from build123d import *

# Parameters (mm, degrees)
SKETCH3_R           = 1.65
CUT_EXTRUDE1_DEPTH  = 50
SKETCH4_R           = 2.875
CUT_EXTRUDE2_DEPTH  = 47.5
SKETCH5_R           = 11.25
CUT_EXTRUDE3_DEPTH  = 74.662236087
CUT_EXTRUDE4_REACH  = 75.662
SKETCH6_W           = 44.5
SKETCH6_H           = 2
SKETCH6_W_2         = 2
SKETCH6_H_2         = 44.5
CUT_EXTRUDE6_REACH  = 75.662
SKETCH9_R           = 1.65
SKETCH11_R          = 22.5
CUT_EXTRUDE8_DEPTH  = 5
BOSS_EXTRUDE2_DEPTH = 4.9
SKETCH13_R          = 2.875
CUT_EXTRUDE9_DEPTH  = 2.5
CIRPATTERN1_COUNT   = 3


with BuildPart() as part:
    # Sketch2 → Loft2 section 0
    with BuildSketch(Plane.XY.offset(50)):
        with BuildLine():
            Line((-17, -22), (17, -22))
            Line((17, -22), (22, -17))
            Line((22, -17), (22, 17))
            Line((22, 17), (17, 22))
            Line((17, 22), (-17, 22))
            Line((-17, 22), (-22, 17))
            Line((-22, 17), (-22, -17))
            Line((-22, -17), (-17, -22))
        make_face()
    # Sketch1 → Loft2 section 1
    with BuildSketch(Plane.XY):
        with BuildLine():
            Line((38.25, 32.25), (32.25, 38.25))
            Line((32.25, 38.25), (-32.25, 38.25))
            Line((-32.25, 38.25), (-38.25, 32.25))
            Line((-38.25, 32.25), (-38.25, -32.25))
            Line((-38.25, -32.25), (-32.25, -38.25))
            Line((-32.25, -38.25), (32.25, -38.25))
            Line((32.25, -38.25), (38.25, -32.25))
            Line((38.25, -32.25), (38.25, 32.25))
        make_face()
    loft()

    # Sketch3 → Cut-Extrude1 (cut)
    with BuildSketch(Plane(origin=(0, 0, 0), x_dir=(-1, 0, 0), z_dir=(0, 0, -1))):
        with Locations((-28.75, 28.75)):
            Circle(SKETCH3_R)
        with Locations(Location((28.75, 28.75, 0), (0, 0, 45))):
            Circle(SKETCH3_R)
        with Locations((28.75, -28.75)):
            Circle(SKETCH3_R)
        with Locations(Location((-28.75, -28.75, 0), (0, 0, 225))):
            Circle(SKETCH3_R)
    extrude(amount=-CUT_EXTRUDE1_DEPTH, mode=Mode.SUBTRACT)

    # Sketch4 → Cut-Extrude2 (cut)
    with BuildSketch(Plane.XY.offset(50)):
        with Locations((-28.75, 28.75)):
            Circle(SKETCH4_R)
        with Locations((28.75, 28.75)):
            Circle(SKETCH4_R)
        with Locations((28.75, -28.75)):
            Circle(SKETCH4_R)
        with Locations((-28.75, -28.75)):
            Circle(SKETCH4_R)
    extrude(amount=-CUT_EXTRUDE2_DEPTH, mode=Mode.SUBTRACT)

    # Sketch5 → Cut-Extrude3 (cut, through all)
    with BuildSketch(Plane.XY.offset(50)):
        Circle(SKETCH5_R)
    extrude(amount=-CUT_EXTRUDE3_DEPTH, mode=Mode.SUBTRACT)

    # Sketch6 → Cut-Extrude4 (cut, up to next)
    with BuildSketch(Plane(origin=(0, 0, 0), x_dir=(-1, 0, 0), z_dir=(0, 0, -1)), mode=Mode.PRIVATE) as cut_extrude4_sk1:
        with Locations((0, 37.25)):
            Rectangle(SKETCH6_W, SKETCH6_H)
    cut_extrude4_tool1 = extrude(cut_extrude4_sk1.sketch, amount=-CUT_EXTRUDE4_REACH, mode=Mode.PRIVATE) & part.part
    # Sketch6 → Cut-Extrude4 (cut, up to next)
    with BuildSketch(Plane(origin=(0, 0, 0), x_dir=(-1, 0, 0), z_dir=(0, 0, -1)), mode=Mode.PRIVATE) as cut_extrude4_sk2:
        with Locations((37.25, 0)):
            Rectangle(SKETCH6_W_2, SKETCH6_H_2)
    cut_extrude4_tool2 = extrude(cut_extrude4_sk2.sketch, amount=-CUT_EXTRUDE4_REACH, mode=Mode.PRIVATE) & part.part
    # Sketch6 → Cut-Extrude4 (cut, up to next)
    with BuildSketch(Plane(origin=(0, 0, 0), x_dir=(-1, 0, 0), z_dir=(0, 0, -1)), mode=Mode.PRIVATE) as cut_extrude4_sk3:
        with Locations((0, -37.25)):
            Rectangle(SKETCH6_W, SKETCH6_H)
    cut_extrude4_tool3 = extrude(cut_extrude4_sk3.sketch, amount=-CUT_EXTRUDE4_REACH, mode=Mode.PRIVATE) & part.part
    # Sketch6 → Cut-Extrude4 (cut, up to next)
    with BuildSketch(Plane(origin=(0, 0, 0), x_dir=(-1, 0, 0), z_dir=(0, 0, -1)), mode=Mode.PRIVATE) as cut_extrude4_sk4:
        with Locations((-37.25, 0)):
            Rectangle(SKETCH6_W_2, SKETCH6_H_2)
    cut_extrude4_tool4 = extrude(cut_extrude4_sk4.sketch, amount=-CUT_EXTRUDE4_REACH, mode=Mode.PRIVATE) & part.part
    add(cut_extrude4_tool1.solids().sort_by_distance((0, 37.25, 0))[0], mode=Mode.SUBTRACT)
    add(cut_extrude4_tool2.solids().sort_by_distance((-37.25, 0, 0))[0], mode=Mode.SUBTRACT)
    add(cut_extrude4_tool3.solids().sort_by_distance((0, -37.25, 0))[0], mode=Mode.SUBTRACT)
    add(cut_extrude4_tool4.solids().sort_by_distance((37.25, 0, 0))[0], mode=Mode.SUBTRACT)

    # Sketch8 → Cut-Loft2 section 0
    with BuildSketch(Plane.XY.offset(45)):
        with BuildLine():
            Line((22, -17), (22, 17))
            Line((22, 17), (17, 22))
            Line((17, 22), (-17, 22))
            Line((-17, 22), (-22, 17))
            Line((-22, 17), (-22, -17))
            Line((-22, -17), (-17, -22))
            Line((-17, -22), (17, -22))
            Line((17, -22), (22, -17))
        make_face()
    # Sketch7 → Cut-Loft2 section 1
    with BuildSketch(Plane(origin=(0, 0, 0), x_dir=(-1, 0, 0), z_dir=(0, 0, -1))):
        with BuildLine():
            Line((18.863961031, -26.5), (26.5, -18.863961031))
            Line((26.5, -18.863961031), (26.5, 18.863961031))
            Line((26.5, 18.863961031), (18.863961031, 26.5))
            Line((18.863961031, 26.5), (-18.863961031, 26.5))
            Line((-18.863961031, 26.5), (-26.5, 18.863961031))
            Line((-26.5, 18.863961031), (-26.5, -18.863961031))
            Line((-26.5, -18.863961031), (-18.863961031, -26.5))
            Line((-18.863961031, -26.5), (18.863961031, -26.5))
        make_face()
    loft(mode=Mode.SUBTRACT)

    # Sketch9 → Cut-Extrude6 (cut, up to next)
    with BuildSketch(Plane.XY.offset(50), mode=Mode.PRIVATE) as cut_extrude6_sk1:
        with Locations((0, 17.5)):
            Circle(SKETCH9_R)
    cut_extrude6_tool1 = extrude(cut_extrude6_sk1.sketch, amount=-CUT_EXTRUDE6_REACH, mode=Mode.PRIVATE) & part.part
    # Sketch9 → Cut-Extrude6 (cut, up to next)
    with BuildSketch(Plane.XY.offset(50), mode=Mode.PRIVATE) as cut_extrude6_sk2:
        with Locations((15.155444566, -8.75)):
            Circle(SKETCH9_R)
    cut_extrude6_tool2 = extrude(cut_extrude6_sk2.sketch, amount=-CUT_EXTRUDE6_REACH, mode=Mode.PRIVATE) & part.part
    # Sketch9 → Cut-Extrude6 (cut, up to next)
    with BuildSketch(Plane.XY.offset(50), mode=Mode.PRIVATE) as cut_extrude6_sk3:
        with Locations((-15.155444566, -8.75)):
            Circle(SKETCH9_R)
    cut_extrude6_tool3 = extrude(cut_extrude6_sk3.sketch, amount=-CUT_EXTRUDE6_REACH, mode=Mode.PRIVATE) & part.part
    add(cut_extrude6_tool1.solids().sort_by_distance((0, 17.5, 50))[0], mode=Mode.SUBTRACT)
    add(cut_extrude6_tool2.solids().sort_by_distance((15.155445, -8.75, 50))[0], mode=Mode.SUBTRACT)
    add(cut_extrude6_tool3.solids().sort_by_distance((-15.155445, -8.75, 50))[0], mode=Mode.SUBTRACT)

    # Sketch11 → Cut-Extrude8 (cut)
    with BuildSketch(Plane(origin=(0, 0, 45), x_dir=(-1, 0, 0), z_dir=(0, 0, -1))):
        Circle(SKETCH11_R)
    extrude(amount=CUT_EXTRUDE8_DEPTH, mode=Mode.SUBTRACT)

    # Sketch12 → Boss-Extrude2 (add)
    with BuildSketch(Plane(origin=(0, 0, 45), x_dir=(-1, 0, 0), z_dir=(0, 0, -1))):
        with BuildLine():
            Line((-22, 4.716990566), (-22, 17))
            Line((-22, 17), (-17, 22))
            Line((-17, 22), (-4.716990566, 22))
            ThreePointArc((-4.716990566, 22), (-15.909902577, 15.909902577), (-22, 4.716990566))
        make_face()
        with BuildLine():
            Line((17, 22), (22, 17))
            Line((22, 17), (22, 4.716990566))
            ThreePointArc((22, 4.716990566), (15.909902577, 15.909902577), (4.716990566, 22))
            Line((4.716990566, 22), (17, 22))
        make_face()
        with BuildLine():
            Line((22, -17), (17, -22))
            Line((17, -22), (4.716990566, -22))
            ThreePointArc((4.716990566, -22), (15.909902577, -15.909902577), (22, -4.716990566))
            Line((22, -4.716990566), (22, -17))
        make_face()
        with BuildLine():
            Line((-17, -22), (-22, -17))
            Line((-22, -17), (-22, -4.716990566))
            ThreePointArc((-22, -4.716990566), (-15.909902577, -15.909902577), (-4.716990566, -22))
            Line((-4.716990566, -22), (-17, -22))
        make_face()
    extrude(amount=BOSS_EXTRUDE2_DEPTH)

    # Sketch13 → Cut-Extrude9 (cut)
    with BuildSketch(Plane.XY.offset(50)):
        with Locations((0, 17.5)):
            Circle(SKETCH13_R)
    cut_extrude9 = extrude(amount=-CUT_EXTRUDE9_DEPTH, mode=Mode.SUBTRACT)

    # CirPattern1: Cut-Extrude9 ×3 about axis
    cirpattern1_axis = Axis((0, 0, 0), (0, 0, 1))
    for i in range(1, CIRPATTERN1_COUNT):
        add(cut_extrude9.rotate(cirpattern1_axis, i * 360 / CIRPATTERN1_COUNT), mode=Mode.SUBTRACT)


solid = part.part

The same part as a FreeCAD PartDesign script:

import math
import FreeCAD as App
import Part
import Sketcher
Q = App.Units.Quantity


def add_polygon(sketch, points):
    """Adds a closed chain of lines whose ends are joined by coincident constraints."""
    first, n = sketch.GeometryCount, len(points)
    for a, b in zip(points, points[1:] + points[:1]):
        sketch.addGeometry(Part.LineSegment(App.Vector(*a, 0), App.Vector(*b, 0)), False)
    for i in range(n):
        sketch.addConstraint(Sketcher.Constraint("Coincident", first + i, 2, first + (i + 1) % n, 1))

doc = App.newDocument("Part")
params = doc.addObject("Spreadsheet::Sheet", "Params")
for row, (alias, value) in enumerate([
    ("sketch1_width", "34 mm"),
    ("sketch2_width", "64.5 mm"),
    ("sketch3_diameter", "3.3 mm"),
    ("pocket1_length", "50 mm"),
    ("sketch4_diameter", "5.75 mm"),
    ("pocket2_length", "47.5 mm"),
    ("sketch5_diameter", "22.5 mm"),
    ("sketch6_height", "2 mm"),
    ("sketch6_width", "44.5 mm"),
    ("pocket4_length", "6.153846 mm"),
    ("sketch7_width", "2 mm"),
    ("sketch7_height", "44.5 mm"),
    ("pocket5_length", "6.153846 mm"),
    ("sketch8_height", "2 mm"),
    ("sketch8_width", "44.5 mm"),
    ("pocket6_length", "6.153846 mm"),
    ("sketch9_width", "2 mm"),
    ("sketch9_height", "44.5 mm"),
    ("pocket7_length", "6.153846 mm"),
    ("sketch10_width", "34 mm"),
    ("sketch12_diameter", "3.3 mm"),
    ("sketch13_diameter", "3.3 mm"),
    ("sketch14_diameter", "3.3 mm"),
    ("sketch15_diameter", "45 mm"),
    ("pocket11_length", "5 mm"),
    ("sketch16_radius", "22.5 mm"),
    ("pad1_length", "4.9 mm"),
    ("sketch17_diameter", "5.75 mm"),
    ("pocket12_length", "2.5 mm"),
], start=1):
    params.set(f"A{row}", alias)
    params.set(f"B{row}", "=" + value)
    params.setAlias(f"B{row}", alias)

body = doc.addObject("PartDesign::Body", "Body")

# Sketch on XY plane
sketch1 = body.newObject("Sketcher::SketchObject", "Sketch")
sketch1.AttachmentSupport = (doc.getObject("XY_Plane"), [""])
sketch1.MapMode = "FlatFace"
sketch1.AttachmentOffset = App.Placement(App.Vector(0, 0, 50), App.Rotation())
add_polygon(sketch1, [(-17, -22), (17, -22), (22, -17), (22, 17), (17, 22), (-17, 22), (-22, 17), (-22, -17)])  # lines 0-7
sketch1.addConstraint([
    Sketcher.Constraint("Horizontal", 0),
    Sketcher.Constraint("Vertical", 2),
    Sketcher.Constraint("Horizontal", 4),
    Sketcher.Constraint("Vertical", 6),
    Sketcher.Constraint("Symmetric", 0, 2, 4, 2, -1, 1),
    Sketcher.Constraint("Symmetric", 1, 2, 5, 2, -1, 1),
    Sketcher.Constraint("Perpendicular", 1, 3),
    Sketcher.Constraint("Perpendicular", 5, 7),
    Sketcher.Constraint("Horizontal", 2, 2, 5, 2),
    Sketcher.Constraint("Horizontal", 1, 2, 6, 2),
    Sketcher.Constraint("Vertical", 0, 2, 3, 2),
    Sketcher.Constraint("Equal", 4, 2),
    Sketcher.Constraint("DistanceX", 0, 1, 0, 2, Q("34 mm")),
    Sketcher.Constraint("DistanceY", 0, 2, -1, 1, Q("22 mm")),
])
sketch1.setExpression("Constraints[20]", "Params.sketch1_width")

# Sketch on XY plane
sketch2 = body.newObject("Sketcher::SketchObject", "Sketch001")
sketch2.AttachmentSupport = (doc.getObject("XY_Plane"), [""])
sketch2.MapMode = "FlatFace"
add_polygon(sketch2, [(38, 32), (32, 38), (-32, 38), (-38, 32), (-38, -32), (-32, -38), (32, -38), (38, -32)])  # lines 0-7
sketch2.addConstraint([
    Sketcher.Constraint("Horizontal", 1),
    Sketcher.Constraint("Vertical", 3),
    Sketcher.Constraint("Horizontal", 5),
    Sketcher.Constraint("Vertical", 7),
    Sketcher.Constraint("Symmetric", 0, 2, 4, 2, -1, 1),
    Sketcher.Constraint("Symmetric", 2, 2, 6, 2, -1, 1),
    Sketcher.Constraint("Perpendicular", 0, 2),
    Sketcher.Constraint("Perpendicular", 2, 4),
    Sketcher.Constraint("Perpendicular", 4, 6),
    Sketcher.Constraint("Horizontal", 3, 2, 6, 2),
    Sketcher.Constraint("Vertical", 1, 2, 4, 2),
    Sketcher.Constraint("Equal", 5, 3),
    Sketcher.Constraint("DistanceX", 1, 2, 1, 1, Q("64.5 mm")),
    Sketcher.Constraint("DistanceX", 2, 2, 1, 2, Q("6 mm")),
])
sketch2.setExpression("Constraints[20]", "Params.sketch2_width")

additiveloft = body.newObject("PartDesign::AdditiveLoft", "AdditiveLoft")
additiveloft.Profile = sketch1
additiveloft.Sections = [sketch2]

# Sketch on XY plane
sketch3 = body.newObject("Sketcher::SketchObject", "Sketch002")
sketch3.AttachmentSupport = (doc.getObject("XY_Plane"), [""])
sketch3.MapMode = "FlatFace"
sketch3.addGeometry([
    Part.Circle(App.Vector(28.8, 28.8, 0), App.Vector(0, 0, 1), 1.6),
    Part.Circle(App.Vector(-28.8, 28.8, 0), App.Vector(0, 0, 1), 1.6),
    Part.Circle(App.Vector(-28.8, -28.8, 0), App.Vector(0, 0, 1), 1.6),
    Part.Circle(App.Vector(28.8, -28.8, 0), App.Vector(0, 0, 1), 1.6),
], False)
sketch3.addConstraint([
    Sketcher.Constraint("Equal", 0, 1),
    Sketcher.Constraint("Equal", 1, 2),
    Sketcher.Constraint("Equal", 2, 3),
    Sketcher.Constraint("Symmetric", 0, 3, 2, 3, -1, 1),
    Sketcher.Constraint("Symmetric", 1, 3, 3, 3, -1, 1),
    Sketcher.Constraint("Symmetric", 0, 3, 1, 3, -2),
    Sketcher.Constraint("Diameter", 0, Q("3.3 mm")),
    Sketcher.Constraint("DistanceX", 1, 3, 0, 3, Q("57.5 mm")),
    Sketcher.Constraint("DistanceY", 2, 3, 1, 3, Q("57.5 mm")),
])
sketch3.setExpression("Constraints[6]", "Params.sketch3_diameter")
pocket1 = body.newObject("PartDesign::Pocket", "Pocket")
pocket1.Profile = sketch3
pocket1.setExpression("Length", "Params.pocket1_length")
pocket1.Reversed = True

# Sketch on XY plane
sketch4 = body.newObject("Sketcher::SketchObject", "Sketch003")
sketch4.AttachmentSupport = (doc.getObject("XY_Plane"), [""])
sketch4.MapMode = "FlatFace"
sketch4.AttachmentOffset = App.Placement(App.Vector(0, 0, 50), App.Rotation())
sketch4.addGeometry([
    Part.Circle(App.Vector(-28.8, 28.8, 0), App.Vector(0, 0, 1), 2.9),
    Part.Circle(App.Vector(28.8, 28.8, 0), App.Vector(0, 0, 1), 2.9),
    Part.Circle(App.Vector(28.8, -28.8, 0), App.Vector(0, 0, 1), 2.9),
    Part.Circle(App.Vector(-28.8, -28.8, 0), App.Vector(0, 0, 1), 2.9),
], False)
sketch4.addConstraint([
    Sketcher.Constraint("Equal", 0, 1),
    Sketcher.Constraint("Equal", 1, 2),
    Sketcher.Constraint("Equal", 2, 3),
    Sketcher.Constraint("Symmetric", 0, 3, 2, 3, -1, 1),
    Sketcher.Constraint("Symmetric", 1, 3, 3, 3, -1, 1),
    Sketcher.Constraint("Symmetric", 0, 3, 1, 3, -2),
    Sketcher.Constraint("Diameter", 0, Q("5.75 mm")),
    Sketcher.Constraint("DistanceX", 0, 3, 1, 3, Q("57.5 mm")),
    Sketcher.Constraint("DistanceY", 2, 3, 1, 3, Q("57.5 mm")),
])
sketch4.setExpression("Constraints[6]", "Params.sketch4_diameter")
pocket2 = body.newObject("PartDesign::Pocket", "Pocket001")
pocket2.Profile = sketch4
pocket2.setExpression("Length", "Params.pocket2_length")

# Sketch on XY plane
sketch5 = body.newObject("Sketcher::SketchObject", "Sketch004")
sketch5.AttachmentSupport = (doc.getObject("XY_Plane"), [""])
sketch5.MapMode = "FlatFace"
sketch5.AttachmentOffset = App.Placement(App.Vector(0, 0, 50), App.Rotation())
sketch5.addGeometry(Part.Circle(App.Vector(0, 0, 0), App.Vector(0, 0, 1), 11), False)
sketch5.addConstraint([
    Sketcher.Constraint("Coincident", 0, 3, -1, 1),
    Sketcher.Constraint("Diameter", 0, Q("22.5 mm")),
])
sketch5.setExpression("Constraints[1]", "Params.sketch5_diameter")
pocket3 = body.newObject("PartDesign::Pocket", "Pocket002")
pocket3.Profile = sketch5
pocket3.Type = "ThroughAll"

# Sketch on XY plane
sketch6 = body.newObject("Sketcher::SketchObject", "Sketch005")
sketch6.AttachmentSupport = (doc.getObject("XY_Plane"), [""])
sketch6.MapMode = "FlatFace"
add_polygon(sketch6, [(22.2, 38.2), (22.2, 36.2), (-22.2, 36.2), (-22.2, 38.2)])  # lines 0-3
sketch6.addConstraint([
    Sketcher.Constraint("Vertical", 0),
    Sketcher.Constraint("Horizontal", 1),
    Sketcher.Constraint("Vertical", 2),
    Sketcher.Constraint("Horizontal", 3),
    Sketcher.Constraint("DistanceY", 0, 2, 0, 1, Q("2 mm")),
    Sketcher.Constraint("DistanceX", 1, 2, 1, 1, Q("44.5 mm")),
    Sketcher.Constraint("DistanceX", -1, 1, 0, 2, Q("22.25 mm")),
    Sketcher.Constraint("DistanceY", -1, 1, 0, 2, Q("36.25 mm")),
])
sketch6.setExpression("Constraints[8]", "Params.sketch6_height")
sketch6.setExpression("Constraints[9]", "Params.sketch6_width")
pocket4 = body.newObject("PartDesign::Pocket", "Pocket003")
pocket4.Profile = sketch6
pocket4.setExpression("Length", "Params.pocket4_length")
pocket4.Reversed = True

# Sketch on XY plane
sketch7 = body.newObject("Sketcher::SketchObject", "Sketch006")
sketch7.AttachmentSupport = (doc.getObject("XY_Plane"), [""])
sketch7.MapMode = "FlatFace"
add_polygon(sketch7, [(-36.2, 22.2), (-36.2, -22.2), (-38.2, -22.2), (-38.2, 22.2)])  # lines 0-3
sketch7.addConstraint([
    Sketcher.Constraint("Vertical", 0),
    Sketcher.Constraint("Horizontal", 1),
    Sketcher.Constraint("Vertical", 2),
    Sketcher.Constraint("Horizontal", 3),
    Sketcher.Constraint("DistanceX", 1, 2, 1, 1, Q("2 mm")),
    Sketcher.Constraint("DistanceY", 0, 2, 0, 1, Q("44.5 mm")),
    Sketcher.Constraint("DistanceX", 0, 2, -1, 1, Q("36.25 mm")),
    Sketcher.Constraint("DistanceY", 0, 2, -1, 1, Q("22.25 mm")),
])
sketch7.setExpression("Constraints[8]", "Params.sketch7_width")
sketch7.setExpression("Constraints[9]", "Params.sketch7_height")
pocket5 = body.newObject("PartDesign::Pocket", "Pocket004")
pocket5.Profile = sketch7
pocket5.setExpression("Length", "Params.pocket5_length")
pocket5.Reversed = True

# Sketch on XY plane
sketch8 = body.newObject("Sketcher::SketchObject", "Sketch007")
sketch8.AttachmentSupport = (doc.getObject("XY_Plane"), [""])
sketch8.MapMode = "FlatFace"
add_polygon(sketch8, [(22.2, -36.2), (22.2, -38.2), (-22.2, -38.2), (-22.2, -36.2)])  # lines 0-3
sketch8.addConstraint([
    Sketcher.Constraint("Vertical", 0),
    Sketcher.Constraint("Horizontal", 1),
    Sketcher.Constraint("Vertical", 2),
    Sketcher.Constraint("Horizontal", 3),
    Sketcher.Constraint("DistanceY", 0, 2, 0, 1, Q("2 mm")),
    Sketcher.Constraint("DistanceX", 1, 2, 1, 1, Q("44.5 mm")),
    Sketcher.Constraint("DistanceX", -1, 1, 0, 2, Q("22.25 mm")),
    Sketcher.Constraint("DistanceY", 0, 2, -1, 1, Q("38.25 mm")),
])
sketch8.setExpression("Constraints[8]", "Params.sketch8_height")
sketch8.setExpression("Constraints[9]", "Params.sketch8_width")
pocket6 = body.newObject("PartDesign::Pocket", "Pocket005")
pocket6.Profile = sketch8
pocket6.setExpression("Length", "Params.pocket6_length")
pocket6.Reversed = True

# Sketch on XY plane
sketch9 = body.newObject("Sketcher::SketchObject", "Sketch008")
sketch9.AttachmentSupport = (doc.getObject("XY_Plane"), [""])
sketch9.MapMode = "FlatFace"
add_polygon(sketch9, [(38.2, 22.2), (38.2, -22.2), (36.2, -22.2), (36.2, 22.2)])  # lines 0-3
sketch9.addConstraint([
    Sketcher.Constraint("Vertical", 0),
    Sketcher.Constraint("Horizontal", 1),
    Sketcher.Constraint("Vertical", 2),
    Sketcher.Constraint("Horizontal", 3),
    Sketcher.Constraint("DistanceX", 1, 2, 1, 1, Q("2 mm")),
    Sketcher.Constraint("DistanceY", 0, 2, 0, 1, Q("44.5 mm")),
    Sketcher.Constraint("DistanceX", -1, 1, 0, 2, Q("38.25 mm")),
    Sketcher.Constraint("DistanceY", 0, 2, -1, 1, Q("22.25 mm")),
])
sketch9.setExpression("Constraints[8]", "Params.sketch9_width")
sketch9.setExpression("Constraints[9]", "Params.sketch9_height")
pocket7 = body.newObject("PartDesign::Pocket", "Pocket006")
pocket7.Profile = sketch9
pocket7.setExpression("Length", "Params.pocket7_length")
pocket7.Reversed = True

# Sketch on XY plane
sketch10 = body.newObject("Sketcher::SketchObject", "Sketch009")
sketch10.AttachmentSupport = (doc.getObject("XY_Plane"), [""])
sketch10.MapMode = "FlatFace"
sketch10.AttachmentOffset = App.Placement(App.Vector(0, 0, 45), App.Rotation())
add_polygon(sketch10, [(22, -17), (22, 17), (17, 22), (-17, 22), (-22, 17), (-22, -17), (-17, -22), (17, -22)])  # lines 0-7
sketch10.addConstraint([
    Sketcher.Constraint("Vertical", 0),
    Sketcher.Constraint("Horizontal", 2),
    Sketcher.Constraint("Vertical", 4),
    Sketcher.Constraint("Horizontal", 6),
    Sketcher.Constraint("Symmetric", 0, 2, 4, 2, -1, 1),
    Sketcher.Constraint("Symmetric", 1, 2, 5, 2, -1, 1),
    Sketcher.Constraint("Perpendicular", 1, 3),
    Sketcher.Constraint("Perpendicular", 5, 7),
    Sketcher.Constraint("Horizontal", 0, 2, 3, 2),
    Sketcher.Constraint("Horizontal", 4, 2, 7, 2),
    Sketcher.Constraint("Vertical", 2, 2, 5, 2),
    Sketcher.Constraint("Equal", 6, 0),
    Sketcher.Constraint("DistanceX", 2, 2, 2, 1, Q("34 mm")),
    Sketcher.Constraint("DistanceX", -1, 1, 0, 2, Q("22 mm")),
])
sketch10.setExpression("Constraints[20]", "Params.sketch10_width")

# Sketch on XY plane
sketch11 = body.newObject("Sketcher::SketchObject", "Sketch010")
sketch11.AttachmentSupport = (doc.getObject("XY_Plane"), [""])
sketch11.MapMode = "FlatFace"
add_polygon(sketch11, [(-19, -26), (-26, -19), (-26, 19), (-19, 26), (19, 26), (26, 19), (26, -19), (19, -26)])  # lines 0-7
sketch11.addConstraint([
    Sketcher.Constraint("Vertical", 1),
    Sketcher.Constraint("Horizontal", 3),
    Sketcher.Constraint("Vertical", 5),
    Sketcher.Constraint("Horizontal", 7),
    Sketcher.Constraint("Symmetric", 0, 2, 4, 2, -1, 1),
    Sketcher.Constraint("Symmetric", 2, 2, 6, 2, -1, 1),
    Sketcher.Constraint("Perpendicular", 0, 2),
    Sketcher.Constraint("Perpendicular", 2, 4),
    Sketcher.Constraint("Perpendicular", 4, 6),
    Sketcher.Constraint("Horizontal", 1, 2, 4, 2),
    Sketcher.Constraint("Vertical", 3, 2, 6, 2),
    Sketcher.Constraint("Equal", 7, 1),
    Sketcher.Constraint("DistanceX", 1, 2, 4, 2, Q("53 mm")),
    Sketcher.Constraint("Distance", 0, Q("10.79899 mm")),
])

subtractiveloft = body.newObject("PartDesign::SubtractiveLoft", "SubtractiveLoft")
subtractiveloft.Profile = sketch10
subtractiveloft.Sections = [sketch11]

# Sketch on XY plane
sketch12 = body.newObject("Sketcher::SketchObject", "Sketch011")
sketch12.AttachmentSupport = (doc.getObject("XY_Plane"), [""])
sketch12.MapMode = "FlatFace"
sketch12.AttachmentOffset = App.Placement(App.Vector(0, 0, 50), App.Rotation())
sketch12.addGeometry(Part.Circle(App.Vector(0, 17.5, 0), App.Vector(0, 0, 1), 1.6), False)
sketch12.addConstraint([
    Sketcher.Constraint("PointOnObject", 0, 3, -2),
    Sketcher.Constraint("Diameter", 0, Q("3.3 mm")),
    Sketcher.Constraint("DistanceY", -1, 1, 0, 3, Q("17.5 mm")),
])
sketch12.setExpression("Constraints[1]", "Params.sketch12_diameter")
pocket8 = body.newObject("PartDesign::Pocket", "Pocket007")
pocket8.Profile = sketch12
pocket8.Type = "UpToFirst"

# Sketch on XY plane
sketch13 = body.newObject("Sketcher::SketchObject", "Sketch012")
sketch13.AttachmentSupport = (doc.getObject("XY_Plane"), [""])
sketch13.MapMode = "FlatFace"
sketch13.AttachmentOffset = App.Placement(App.Vector(0, 0, 50), App.Rotation())
sketch13.addGeometry(Part.Circle(App.Vector(15.2, -8.8, 0), App.Vector(0, 0, 1), 1.6), False)
sketch13.addConstraint([
    Sketcher.Constraint("Diameter", 0, Q("3.3 mm")),
    Sketcher.Constraint("DistanceY", 0, 3, -1, 1, Q("8.75 mm")),
    Sketcher.Constraint("DistanceX", -1, 1, 0, 3, Q("15.155445 mm")),
])
sketch13.setExpression("Constraints[0]", "Params.sketch13_diameter")
pocket9 = body.newObject("PartDesign::Pocket", "Pocket008")
pocket9.Profile = sketch13
pocket9.Type = "UpToFirst"

# Sketch on XY plane
sketch14 = body.newObject("Sketcher::SketchObject", "Sketch013")
sketch14.AttachmentSupport = (doc.getObject("XY_Plane"), [""])
sketch14.MapMode = "FlatFace"
sketch14.AttachmentOffset = App.Placement(App.Vector(0, 0, 50), App.Rotation())
sketch14.addGeometry(Part.Circle(App.Vector(-15.2, -8.8, 0), App.Vector(0, 0, 1), 1.6), False)
sketch14.addConstraint([
    Sketcher.Constraint("Diameter", 0, Q("3.3 mm")),
    Sketcher.Constraint("DistanceY", 0, 3, -1, 1, Q("8.75 mm")),
    Sketcher.Constraint("DistanceX", 0, 3, -1, 1, Q("15.155445 mm")),
])
sketch14.setExpression("Constraints[0]", "Params.sketch14_diameter")
pocket10 = body.newObject("PartDesign::Pocket", "Pocket009")
pocket10.Profile = sketch14
pocket10.Type = "UpToFirst"

# Sketch on XY plane
sketch15 = body.newObject("Sketcher::SketchObject", "Sketch014")
sketch15.AttachmentSupport = (doc.getObject("XY_Plane"), [""])
sketch15.MapMode = "FlatFace"
sketch15.AttachmentOffset = App.Placement(App.Vector(0, 0, 45), App.Rotation())
sketch15.addGeometry(Part.Circle(App.Vector(0, 0, 0), App.Vector(0, 0, 1), 22), False)
sketch15.addConstraint([
    Sketcher.Constraint("Coincident", 0, 3, -1, 1),
    Sketcher.Constraint("Diameter", 0, Q("45 mm")),
])
sketch15.setExpression("Constraints[1]", "Params.sketch15_diameter")
pocket11 = body.newObject("PartDesign::Pocket", "Pocket010")
pocket11.Profile = sketch15
pocket11.setExpression("Length", "Params.pocket11_length")

# Sketch on XY plane
sketch16 = body.newObject("Sketcher::SketchObject", "Sketch015")
sketch16.AttachmentSupport = (doc.getObject("XY_Plane"), [""])
sketch16.MapMode = "FlatFace"
sketch16.AttachmentOffset = App.Placement(App.Vector(0, 0, 45), App.Rotation())
sketch16.addGeometry([
    Part.LineSegment(App.Vector(22, 17, 0), App.Vector(22, 5, 0)),  # 0
    Part.ArcOfCircle(Part.Circle(App.Vector(0, 0, 0), App.Vector(0, 0, 1), 22), math.radians(12), math.radians(78)),  # 1
    Part.LineSegment(App.Vector(5, 22, 0), App.Vector(17, 22, 0)),  # 2
    Part.LineSegment(App.Vector(17, 22, 0), App.Vector(22, 17, 0)),  # 3
    Part.LineSegment(App.Vector(-22, 17, 0), App.Vector(-17, 22, 0)),  # 4
    Part.LineSegment(App.Vector(-17, 22, 0), App.Vector(-5, 22, 0)),  # 5
    Part.ArcOfCircle(Part.Circle(App.Vector(0, 0, 0), App.Vector(0, 0, 1), 22), math.radians(102), math.radians(168)),  # 6
    Part.LineSegment(App.Vector(-22, 5, 0), App.Vector(-22, 17, 0)),  # 7
    Part.LineSegment(App.Vector(-17, -22, 0), App.Vector(-22, -17, 0)),  # 8
    Part.LineSegment(App.Vector(-22, -17, 0), App.Vector(-22, -5, 0)),  # 9
    Part.ArcOfCircle(Part.Circle(App.Vector(0, 0, 0), App.Vector(0, 0, 1), 22), math.radians(-168), math.radians(-102)),  # 10
    Part.LineSegment(App.Vector(-5, -22, 0), App.Vector(-17, -22, 0)),  # 11
    Part.LineSegment(App.Vector(22, -17, 0), App.Vector(17, -22, 0)),  # 12
    Part.LineSegment(App.Vector(17, -22, 0), App.Vector(5, -22, 0)),  # 13
    Part.ArcOfCircle(Part.Circle(App.Vector(0, 0, 0), App.Vector(0, 0, 1), 22), math.radians(-78), math.radians(-12)),  # 14
    Part.LineSegment(App.Vector(22, -5, 0), App.Vector(22, -17, 0)),  # 15
], False)
sketch16.addConstraint([
    Sketcher.Constraint("Coincident", 0, 2, 1, 1),
    Sketcher.Constraint("Coincident", 1, 2, 2, 1),
    Sketcher.Constraint("Coincident", 2, 2, 3, 1),
    Sketcher.Constraint("Coincident", 3, 2, 0, 1),
    Sketcher.Constraint("Coincident", 4, 2, 5, 1),
    Sketcher.Constraint("Coincident", 5, 2, 6, 1),
    Sketcher.Constraint("Coincident", 6, 2, 7, 1),
    Sketcher.Constraint("Coincident", 7, 2, 4, 1),
    Sketcher.Constraint("Coincident", 8, 2, 9, 1),
    Sketcher.Constraint("Coincident", 9, 2, 10, 1),
    Sketcher.Constraint("Coincident", 10, 2, 11, 1),
    Sketcher.Constraint("Coincident", 11, 2, 8, 1),
    Sketcher.Constraint("Coincident", 12, 2, 13, 1),
    Sketcher.Constraint("Coincident", 13, 2, 14, 1),
    Sketcher.Constraint("Coincident", 14, 2, 15, 1),
    Sketcher.Constraint("Coincident", 15, 2, 12, 1),
    Sketcher.Constraint("Vertical", 0),
    Sketcher.Constraint("Horizontal", 2),
    Sketcher.Constraint("Horizontal", 5),
    Sketcher.Constraint("Vertical", 7),
    Sketcher.Constraint("Vertical", 9),
    Sketcher.Constraint("Horizontal", 11),
    Sketcher.Constraint("Horizontal", 13),
    Sketcher.Constraint("Vertical", 15),
    Sketcher.Constraint("Coincident", 1, 3, -1, 1),
    Sketcher.Constraint("Coincident", 6, 3, -1, 1),
    Sketcher.Constraint("Coincident", 10, 3, -1, 1),
    Sketcher.Constraint("Coincident", 14, 3, -1, 1),
    Sketcher.Constraint("Equal", 1, 6),
    Sketcher.Constraint("Equal", 6, 10),
    Sketcher.Constraint("Equal", 10, 14),
    Sketcher.Constraint("Symmetric", 3, 2, 8, 2, -1, 1),
    Sketcher.Constraint("Symmetric", 2, 2, 11, 2, -1, 1),
    Sketcher.Constraint("Symmetric", 4, 2, 12, 2, -1, 1),
    Sketcher.Constraint("Symmetric", 7, 2, 15, 2, -1, 1),
    Sketcher.Constraint("Symmetric", 2, 2, 4, 2, -2),
    Sketcher.Constraint("Symmetric", 3, 2, 7, 2, -2),
    Sketcher.Constraint("Perpendicular", 3, 4),
    Sketcher.Constraint("Equal", 13, 0),
    Sketcher.Constraint("Radius", 1, Q("22.5 mm")),
    Sketcher.Constraint("DistanceX", -1, 1, 0, 2, Q("22 mm")),
    Sketcher.Constraint("DistanceX", -1, 1, 2, 2, Q("17 mm")),
])
sketch16.setExpression("Constraints[39]", "Params.sketch16_radius")
pad1 = body.newObject("PartDesign::Pad", "Pad")
pad1.Profile = sketch16
pad1.setExpression("Length", "Params.pad1_length")
pad1.Reversed = True

# Sketch on XY plane
sketch17 = body.newObject("Sketcher::SketchObject", "Sketch016")
sketch17.AttachmentSupport = (doc.getObject("XY_Plane"), [""])
sketch17.MapMode = "FlatFace"
sketch17.AttachmentOffset = App.Placement(App.Vector(0, 0, 50), App.Rotation())
sketch17.addGeometry(Part.Circle(App.Vector(0, 17.5, 0), App.Vector(0, 0, 1), 2.9), False)
sketch17.addConstraint([
    Sketcher.Constraint("PointOnObject", 0, 3, -2),
    Sketcher.Constraint("Diameter", 0, Q("5.75 mm")),
    Sketcher.Constraint("DistanceY", -1, 1, 0, 3, Q("17.5 mm")),
])
sketch17.setExpression("Constraints[1]", "Params.sketch17_diameter")
pocket12 = body.newObject("PartDesign::Pocket", "Pocket011")
pocket12.Profile = sketch17
pocket12.setExpression("Length", "Params.pocket12_length")
doc.recompute()

polarpattern = body.newObject("PartDesign::PolarPattern", "PolarPattern")
polarpattern.Originals = [pocket12]
polarpattern.Axis = (doc.getObject("Z_Axis"), [""])
polarpattern.Angle = 360
polarpattern.Occurrences = 3
body.Tip = polarpattern

doc.recompute()
